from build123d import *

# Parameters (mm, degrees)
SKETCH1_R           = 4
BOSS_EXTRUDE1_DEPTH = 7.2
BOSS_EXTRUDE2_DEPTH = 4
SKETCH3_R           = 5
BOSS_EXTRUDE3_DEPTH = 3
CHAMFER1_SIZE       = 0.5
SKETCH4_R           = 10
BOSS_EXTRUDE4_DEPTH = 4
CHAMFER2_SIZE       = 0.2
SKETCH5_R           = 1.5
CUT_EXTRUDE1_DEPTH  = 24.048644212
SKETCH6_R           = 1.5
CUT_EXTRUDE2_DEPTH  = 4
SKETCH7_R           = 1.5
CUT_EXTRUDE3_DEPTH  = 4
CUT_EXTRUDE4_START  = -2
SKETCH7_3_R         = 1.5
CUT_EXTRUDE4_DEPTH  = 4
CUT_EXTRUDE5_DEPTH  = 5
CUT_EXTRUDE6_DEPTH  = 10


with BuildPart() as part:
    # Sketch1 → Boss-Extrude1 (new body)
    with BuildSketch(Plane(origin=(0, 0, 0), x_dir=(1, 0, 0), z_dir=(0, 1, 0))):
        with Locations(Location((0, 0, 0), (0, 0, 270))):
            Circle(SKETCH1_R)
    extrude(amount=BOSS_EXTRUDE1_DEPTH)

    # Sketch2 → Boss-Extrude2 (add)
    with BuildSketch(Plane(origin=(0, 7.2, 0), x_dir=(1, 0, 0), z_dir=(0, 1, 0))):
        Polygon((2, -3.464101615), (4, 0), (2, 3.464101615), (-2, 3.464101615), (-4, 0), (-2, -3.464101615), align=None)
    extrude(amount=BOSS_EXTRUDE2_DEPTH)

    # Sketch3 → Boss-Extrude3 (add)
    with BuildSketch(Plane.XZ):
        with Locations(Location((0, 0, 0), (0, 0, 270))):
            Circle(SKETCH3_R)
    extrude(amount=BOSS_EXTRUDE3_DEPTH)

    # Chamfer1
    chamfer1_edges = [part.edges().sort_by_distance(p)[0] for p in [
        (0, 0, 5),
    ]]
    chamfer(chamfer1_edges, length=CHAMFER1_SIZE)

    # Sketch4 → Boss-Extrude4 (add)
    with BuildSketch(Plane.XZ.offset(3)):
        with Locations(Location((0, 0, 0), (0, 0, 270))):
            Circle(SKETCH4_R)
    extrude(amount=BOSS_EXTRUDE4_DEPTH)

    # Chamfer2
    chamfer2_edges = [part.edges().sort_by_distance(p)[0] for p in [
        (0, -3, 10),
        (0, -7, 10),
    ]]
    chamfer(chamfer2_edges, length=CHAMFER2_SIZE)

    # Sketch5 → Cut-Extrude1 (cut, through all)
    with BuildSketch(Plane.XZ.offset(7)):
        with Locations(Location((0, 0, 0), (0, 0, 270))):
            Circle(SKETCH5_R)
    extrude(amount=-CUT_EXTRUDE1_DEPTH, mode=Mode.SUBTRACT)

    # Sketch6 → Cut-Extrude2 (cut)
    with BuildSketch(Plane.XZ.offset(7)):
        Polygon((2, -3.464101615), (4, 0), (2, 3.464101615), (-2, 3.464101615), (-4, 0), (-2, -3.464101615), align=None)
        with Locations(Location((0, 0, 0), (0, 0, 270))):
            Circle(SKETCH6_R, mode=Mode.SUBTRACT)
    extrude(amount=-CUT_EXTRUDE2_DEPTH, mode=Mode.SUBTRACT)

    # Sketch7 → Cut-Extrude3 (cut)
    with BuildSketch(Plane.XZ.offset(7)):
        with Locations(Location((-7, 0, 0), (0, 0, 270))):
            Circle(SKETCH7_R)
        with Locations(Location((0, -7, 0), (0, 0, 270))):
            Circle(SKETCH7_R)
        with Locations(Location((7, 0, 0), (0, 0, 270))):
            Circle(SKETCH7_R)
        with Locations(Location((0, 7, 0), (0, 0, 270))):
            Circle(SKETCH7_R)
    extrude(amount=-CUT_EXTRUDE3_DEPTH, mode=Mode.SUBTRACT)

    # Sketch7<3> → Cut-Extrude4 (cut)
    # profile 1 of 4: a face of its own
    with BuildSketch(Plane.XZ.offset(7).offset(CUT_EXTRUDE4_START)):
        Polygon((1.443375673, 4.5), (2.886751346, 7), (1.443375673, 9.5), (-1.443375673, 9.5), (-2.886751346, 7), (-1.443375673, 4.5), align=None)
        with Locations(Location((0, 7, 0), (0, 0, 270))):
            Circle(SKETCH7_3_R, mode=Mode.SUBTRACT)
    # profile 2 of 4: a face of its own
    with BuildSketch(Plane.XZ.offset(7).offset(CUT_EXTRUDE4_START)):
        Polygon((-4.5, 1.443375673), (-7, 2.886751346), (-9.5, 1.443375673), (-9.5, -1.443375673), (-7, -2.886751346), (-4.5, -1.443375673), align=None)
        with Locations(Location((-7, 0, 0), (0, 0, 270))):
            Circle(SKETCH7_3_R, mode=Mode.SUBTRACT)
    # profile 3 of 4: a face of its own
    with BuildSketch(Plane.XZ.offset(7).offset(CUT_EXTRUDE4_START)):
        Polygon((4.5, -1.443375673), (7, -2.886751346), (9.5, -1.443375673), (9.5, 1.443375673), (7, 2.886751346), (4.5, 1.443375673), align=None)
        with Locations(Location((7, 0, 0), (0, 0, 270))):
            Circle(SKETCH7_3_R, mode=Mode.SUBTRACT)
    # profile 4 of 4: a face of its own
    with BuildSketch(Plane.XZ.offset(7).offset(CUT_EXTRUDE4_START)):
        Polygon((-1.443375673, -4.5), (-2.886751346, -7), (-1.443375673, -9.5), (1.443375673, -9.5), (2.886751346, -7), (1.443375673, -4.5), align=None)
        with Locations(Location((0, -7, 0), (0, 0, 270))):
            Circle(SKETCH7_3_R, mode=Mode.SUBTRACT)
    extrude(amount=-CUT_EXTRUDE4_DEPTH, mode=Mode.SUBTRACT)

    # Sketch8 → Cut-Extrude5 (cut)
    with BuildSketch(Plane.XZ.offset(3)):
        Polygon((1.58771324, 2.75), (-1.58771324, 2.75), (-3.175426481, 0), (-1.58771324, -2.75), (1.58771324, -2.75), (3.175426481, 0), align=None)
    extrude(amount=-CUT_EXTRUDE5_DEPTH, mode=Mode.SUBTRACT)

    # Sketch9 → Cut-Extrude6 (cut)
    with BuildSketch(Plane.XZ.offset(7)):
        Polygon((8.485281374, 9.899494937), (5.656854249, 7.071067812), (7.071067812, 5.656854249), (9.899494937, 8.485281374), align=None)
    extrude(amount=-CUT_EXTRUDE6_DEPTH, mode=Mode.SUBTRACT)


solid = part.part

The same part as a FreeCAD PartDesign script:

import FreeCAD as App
import Part
import Sketcher
from FreeCAD import Vector
Q = App.Units.Quantity


def edges_at(feature, points):
    """Names of the edges that pass closest to the given points."""
    edges = feature.Shape.Edges
    near = lambda p: min(range(len(edges)), key=lambda i: edges[i].distToShape(Part.Vertex(*p))[0])
    return sorted({f"Edge{near(p) + 1}" for p in points})

doc = App.newDocument("Part")
body = doc.addObject("PartDesign::Body", "Body")

# Sketch on XZ plane
sketch1 = doc.addObject("Sketcher::SketchObject", "Sketch")
body.addObject(sketch1)
sketch1.AttachmentSupport = (doc.XZ_Plane, [""])
sketch1.MapMode = "FlatFace"
sketch1.addGeometry(Part.Circle(Vector(0, 0, 0), Vector(0, 0, 1), 4), False)
sketch1.addConstraint(Sketcher.Constraint("Coincident", 0, 3, -1, 1))
sketch1.addConstraint(Sketcher.Constraint("Diameter", 0, Q("8 mm")))
pad1 = doc.addObject("PartDesign::Pad", "Pad")
body.addObject(pad1)
pad1.Profile = sketch1
pad1.Length = 7.2
pad1.Reversed = True

# Sketch on XZ plane
sketch2 = doc.addObject("Sketcher::SketchObject", "Sketch001")
body.addObject(sketch2)
sketch2.AttachmentSupport = (doc.XZ_Plane, [""])
sketch2.MapMode = "FlatFace"
sketch2.AttachmentOffset = App.Placement(Vector(0, 0, -7.2), App.Rotation())
sketch2.addGeometry(Part.LineSegment(Vector(2, 3.5, 0), Vector(4, 0, 0)), False)
sketch2.addGeometry(Part.LineSegment(Vector(4, 0, 0), Vector(2, -3.5, 0)), False)
sketch2.addGeometry(Part.LineSegment(Vector(2, -3.5, 0), Vector(-2, -3.5, 0)), False)
sketch2.addGeometry(Part.LineSegment(Vector(-2, -3.5, 0), Vector(-4, 0, 0)), False)
sketch2.addGeometry(Part.LineSegment(Vector(-4, 0, 0), Vector(-2, 3.5, 0)), False)
sketch2.addGeometry(Part.LineSegment(Vector(-2, 3.5, 0), Vector(2, 3.5, 0)), False)
sketch2.addConstraint(Sketcher.Constraint("Coincident", 0, 2, 1, 1))
sketch2.addConstraint(Sketcher.Constraint("Coincident", 1, 2, 2, 1))
sketch2.addConstraint(Sketcher.Constraint("Coincident", 2, 2, 3, 1))
sketch2.addConstraint(Sketcher.Constraint("Coincident", 3, 2, 4, 1))
sketch2.addConstraint(Sketcher.Constraint("Coincident", 4, 2, 5, 1))
sketch2.addConstraint(Sketcher.Constraint("Coincident", 5, 2, 0, 1))
sketch2.addConstraint(Sketcher.Constraint("Horizontal", 2))
sketch2.addConstraint(Sketcher.Constraint("Horizontal", 5))
sketch2.addConstraint(Sketcher.Constraint("Symmetric", 0, 2, 3, 2, -1, 1))
sketch2.addConstraint(Sketcher.Constraint("Symmetric", 1, 2, 4, 2, -1, 1))
sketch2.addConstraint(Sketcher.Constraint("PointOnObject", 0, 2, -1))
sketch2.addConstraint(Sketcher.Constraint("Parallel", 0, 3))
sketch2.addConstraint(Sketcher.Constraint("Vertical", 2, 2, 4, 2))
sketch2.addConstraint(Sketcher.Constraint("DistanceX", 2, 2, 2, 1, Q("4 mm")))
sketch2.addConstraint(Sketcher.Constraint("Angle", 0, Q("-60 deg")))
sketch2.addConstraint(Sketcher.Constraint("Distance", 0, Q("4 mm")))
pad2 = doc.addObject("PartDesign::Pad", "Pad001")
body.addObject(pad2)
pad2.Profile = sketch2
pad2.Length = 4
pad2.Reversed = True

# Sketch on XZ plane
sketch3 = doc.addObject("Sketcher::SketchObject", "Sketch002")
body.addObject(sketch3)
sketch3.AttachmentSupport = (doc.XZ_Plane, [""])
sketch3.MapMode = "FlatFace"
sketch3.addGeometry(Part.Circle(Vector(0, 0, 0), Vector(0, 0, 1), 5), False)
sketch3.addConstraint(Sketcher.Constraint("Coincident", 0, 3, -1, 1))
sketch3.addConstraint(Sketcher.Constraint("Diameter", 0, Q("10 mm")))
pad3 = doc.addObject("PartDesign::Pad", "Pad002")
body.addObject(pad3)
pad3.Profile = sketch3
pad3.Length = 3
doc.recompute()

chamfer = doc.addObject("PartDesign::Chamfer", "Chamfer")
body.addObject(chamfer)
chamfer.Base = (pad3, edges_at(pad3, [(0, 0, 5)]))
chamfer.Size = 0.5

# Sketch on XZ plane
sketch4 = doc.addObject("Sketcher::SketchObject", "Sketch003")
body.addObject(sketch4)
sketch4.AttachmentSupport = (doc.XZ_Plane, [""])
sketch4.MapMode = "FlatFace"
sketch4.AttachmentOffset = App.Placement(Vector(0, 0, 3), App.Rotation())
sketch4.addGeometry(Part.Circle(Vector(0, 0, 0), Vector(0, 0, 1), 10), False)
sketch4.addConstraint(Sketcher.Constraint("Coincident", 0, 3, -1, 1))
sketch4.addConstraint(Sketcher.Constraint("Diameter", 0, Q("20 mm")))
pad4 = doc.addObject("PartDesign::Pad", "Pad003")
body.addObject(pad4)
pad4.Profile = sketch4
pad4.Length = 4
doc.recompute()

chamfer2 = doc.addObject("PartDesign::Chamfer", "Chamfer001")
body.addObject(chamfer2)
chamfer2.Base = (pad4, edges_at(pad4, [(0, -3, 10), (0, -7, 10)]))
chamfer2.Size = 0.2

# Sketch on XZ plane
sketch5 = doc.addObject("Sketcher::SketchObject", "Sketch004")
body.addObject(sketch5)
sketch5.AttachmentSupport = (doc.XZ_Plane, [""])
sketch5.MapMode = "FlatFace"
sketch5.AttachmentOffset = App.Placement(Vector(0, 0, 7), App.Rotation())
sketch5.addGeometry(Part.Circle(Vector(0, 0, 0), Vector(0, 0, 1), 1.5), False)
sketch5.addConstraint(Sketcher.Constraint("Coincident", 0, 3, -1, 1))
sketch5.addConstraint(Sketcher.Constraint("Diameter", 0, Q("3 mm")))
pocket1 = doc.addObject("PartDesign::Pocket", "Pocket")
body.addObject(pocket1)
pocket1.Profile = sketch5
pocket1.Type = "ThroughAll"

# Sketch on XZ plane
sketch6 = doc.addObject("Sketcher::SketchObject", "Sketch005")
body.addObject(sketch6)
sketch6.AttachmentSupport = (doc.XZ_Plane, [""])
sketch6.MapMode = "FlatFace"
sketch6.AttachmentOffset = App.Placement(Vector(0, 0, 7), App.Rotation())
sketch6.addGeometry(Part.LineSegment(Vector(2, -3.5, 0), Vector(4, 0, 0)), False)
sketch6.addGeometry(Part.LineSegment(Vector(4, 0, 0), Vector(2, 3.5, 0)), False)
sketch6.addGeometry(Part.LineSegment(Vector(2, 3.5, 0), Vector(-2, 3.5, 0)), False)
sketch6.addGeometry(Part.LineSegment(Vector(-2, 3.5, 0), Vector(-4, 0, 0)), False)
sketch6.addGeometry(Part.LineSegment(Vector(-4, 0, 0), Vector(-2, -3.5, 0)), False)
sketch6.addGeometry(Part.LineSegment(Vector(-2, -3.5, 0), Vector(2, -3.5, 0)), False)
sketch6.addGeometry(Part.Circle(Vector(0, 0, 0), Vector(0, 0, 1), 1.5), False)
sketch6.addConstraint(Sketcher.Constraint("Coincident", 0, 2, 1, 1))
sketch6.addConstraint(Sketcher.Constraint("Coincident", 1, 2, 2, 1))
sketch6.addConstraint(Sketcher.Constraint("Coincident", 2, 2, 3, 1))
sketch6.addConstraint(Sketcher.Constraint("Coincident", 3, 2, 4, 1))
sketch6.addConstraint(Sketcher.Constraint("Coincident", 4, 2, 5, 1))
sketch6.addConstraint(Sketcher.Constraint("Coincident", 5, 2, 0, 1))
sketch6.addConstraint(Sketcher.Constraint("Horizontal", 2))
sketch6.addConstraint(Sketcher.Constraint("Horizontal", 5))
sketch6.addConstraint(Sketcher.Constraint("Coincident", 6, 3, -1, 1))
sketch6.addConstraint(Sketcher.Constraint("Symmetric", 0, 2, 3, 2, -1, 1))
sketch6.addConstraint(Sketcher.Constraint("Symmetric", 1, 2, 4, 2, -1, 1))
sketch6.addConstraint(Sketcher.Constraint("PointOnObject", 0, 2, -1))
sketch6.addConstraint(Sketcher.Constraint("Parallel", 0, 3))
sketch6.addConstraint(Sketcher.Constraint("Vertical", 2, 2, 4, 2))
sketch6.addConstraint(Sketcher.Constraint("Diameter", 6, Q("3 mm")))
sketch6.addConstraint(Sketcher.Constraint("DistanceX", 2, 2, 2, 1, Q("4 mm")))
sketch6.addConstraint(Sketcher.Constraint("Angle", 0, Q("60 deg")))
sketch6.addConstraint(Sketcher.Constraint("Distance", 0, Q("4 mm")))
pocket2 = doc.addObject("PartDesign::Pocket", "Pocket001")
body.addObject(pocket2)
pocket2.Profile = sketch6
pocket2.Length = 4

# Sketch on XZ plane
sketch7 = doc.addObject("Sketcher::SketchObject", "Sketch006")
body.addObject(sketch7)
sketch7.AttachmentSupport = (doc.XZ_Plane, [""])
sketch7.MapMode = "FlatFace"
sketch7.AttachmentOffset = App.Placement(Vector(0, 0, 7), App.Rotation())
sketch7.addGeometry(Part.Circle(Vector(-7, 0, 0), Vector(0, 0, 1), 1.5), False)
sketch7.addGeometry(Part.Circle(Vector(0, -7, 0), Vector(0, 0, 1), 1.5), False)
sketch7.addGeometry(Part.Circle(Vector(7, 0, 0), Vector(0, 0, 1), 1.5), False)
sketch7.addGeometry(Part.Circle(Vector(0, 7, 0), Vector(0, 0, 1), 1.5), False)
sketch7.addConstraint(Sketcher.Constraint("Equal", 0, 1))
sketch7.addConstraint(Sketcher.Constraint("Equal", 1, 2))
sketch7.addConstraint(Sketcher.Constraint("Equal", 2, 3))
sketch7.addConstraint(Sketcher.Constraint("Symmetric", 0, 3, 2, 3, -1, 1))
sketch7.addConstraint(Sketcher.Constraint("Symmetric", 1, 3, 3, 3, -1, 1))
sketch7.addConstraint(Sketcher.Constraint("PointOnObject", 0, 3, -1))
sketch7.addConstraint(Sketcher.Constraint("PointOnObject", 1, 3, -2))
sketch7.addConstraint(Sketcher.Constraint("Diameter", 0, Q("3 mm")))
sketch7.addConstraint(Sketcher.Constraint("DistanceX", 0, 3, -1, 1, Q("7 mm")))
sketch7.addConstraint(Sketcher.Constraint("DistanceY", 1, 3, -1, 1, Q("7 mm")))
pocket3 = doc.addObject("PartDesign::Pocket", "Pocket002")
body.addObject(pocket3)
pocket3.Profile = sketch7
pocket3.Length = 4

# Sketch on XZ plane
sketch8 = doc.addObject("Sketcher::SketchObject", "Sketch007")
body.addObject(sketch8)
sketch8.AttachmentSupport = (doc.XZ_Plane, [""])
sketch8.MapMode = "FlatFace"
sketch8.AttachmentOffset = App.Placement(Vector(0, 0, 5), App.Rotation())
sketch8.addGeometry(Part.LineSegment(Vector(1.4, 4.5, 0), Vector(2.9, 7, 0)), False)
sketch8.addGeometry(Part.LineSegment(Vector(2.9, 7, 0), Vector(1.4, 9.5, 0)), False)
sketch8.addGeometry(Part.LineSegment(Vector(1.4, 9.5, 0), Vector(-1.4, 9.5, 0)), False)
sketch8.addGeometry(Part.LineSegment(Vector(-1.4, 9.5, 0), Vector(-2.9, 7, 0)), False)
sketch8.addGeometry(Part.LineSegment(Vector(-2.9, 7, 0), Vector(-1.4, 4.5, 0)), False)
sketch8.addGeometry(Part.LineSegment(Vector(-1.4, 4.5, 0), Vector(1.4, 4.5, 0)), False)
sketch8.addGeometry(Part.Circle(Vector(0, 7, 0), Vector(0, 0, 1), 1.5), False)
sketch8.addGeometry(Part.LineSegment(Vector(-4.5, 1.4, 0), Vector(-7, 2.9, 0)), False)
sketch8.addGeometry(Part.LineSegment(Vector(-7, 2.9, 0), Vector(-9.5, 1.4, 0)), False)
sketch8.addGeometry(Part.LineSegment(Vector(-9.5, 1.4, 0), Vector(-9.5, -1.4, 0)), False)
sketch8.addGeometry(Part.LineSegment(Vector(-9.5, -1.4, 0), Vector(-7, -2.9, 0)), False)
sketch8.addGeometry(Part.LineSegment(Vector(-7, -2.9, 0), Vector(-4.5, -1.4, 0)), False)
sketch8.addGeometry(Part.LineSegment(Vector(-4.5, -1.4, 0), Vector(-4.5, 1.4, 0)), False)
sketch8.addGeometry(Part.Circle(Vector(-7, 0, 0), Vector(0, 0, 1), 1.5), False)
sketch8.addGeometry(Part.LineSegment(Vector(4.5, -1.4, 0), Vector(7, -2.9, 0)), False)
sketch8.addGeometry(Part.LineSegment(Vector(7, -2.9, 0), Vector(9.5, -1.4, 0)), False)
sketch8.addGeometry(Part.LineSegment(Vector(9.5, -1.4, 0), Vector(9.5, 1.4, 0)), False)
sketch8.addGeometry(Part.LineSegment(Vector(9.5, 1.4, 0), Vector(7, 2.9, 0)), False)
sketch8.addGeometry(Part.LineSegment(Vector(7, 2.9, 0), Vector(4.5, 1.4, 0)), False)
sketch8.addGeometry(Part.LineSegment(Vector(4.5, 1.4, 0), Vector(4.5, -1.4, 0)), False)
sketch8.addGeometry(Part.Circle(Vector(7, 0, 0), Vector(0, 0, 1), 1.5), False)
sketch8.addGeometry(Part.LineSegment(Vector(-1.4, -4.5, 0), Vector(-2.9, -7, 0)), False)
sketch8.addGeometry(Part.LineSegment(Vector(-2.9, -7, 0), Vector(-1.4, -9.5, 0)), False)
sketch8.addGeometry(Part.LineSegment(Vector(-1.4, -9.5, 0), Vector(1.4, -9.5, 0)), False)
sketch8.addGeometry(Part.LineSegment(Vector(1.4, -9.5, 0), Vector(2.9, -7, 0)), False)
sketch8.addGeometry(Part.LineSegment(Vector(2.9, -7, 0), Vector(1.4, -4.5, 0)), False)
sketch8.addGeometry(Part.LineSegment(Vector(1.4, -4.5, 0), Vector(-1.4, -4.5, 0)), False)
sketch8.addGeometry(Part.Circle(Vector(0, -7, 0), Vector(0, 0, 1), 1.5), False)
sketch8.addConstraint(Sketcher.Constraint("Coincident", 0, 2, 1, 1))
sketch8.addConstraint(Sketcher.Constraint("Coincident", 1, 2, 2, 1))
sketch8.addConstraint(Sketcher.Constraint("Coincident", 2, 2, 3, 1))
sketch8.addConstraint(Sketcher.Constraint("Coincident", 3, 2, 4, 1))
sketch8.addConstraint(Sketcher.Constraint("Coincident", 4, 2, 5, 1))
sketch8.addConstraint(Sketcher.Constraint("Coincident", 5, 2, 0, 1))
sketch8.addConstraint(Sketcher.Constraint("Coincident", 7, 2, 8, 1))
sketch8.addConstraint(Sketcher.Constraint("Coincident", 8, 2, 9, 1))
sketch8.addConstraint(Sketcher.Constraint("Coincident", 9, 2, 10, 1))
sketch8.addConstraint(Sketcher.Constraint("Coincident", 10, 2, 11, 1))
sketch8.addConstraint(Sketcher.Constraint("Coincident", 11, 2, 12, 1))
sketch8.addConstraint(Sketcher.Constraint("Coincident", 12, 2, 7, 1))
sketch8.addConstraint(Sketcher.Constraint("Coincident", 14, 2, 15, 1))
sketch8.addConstraint(Sketcher.Constraint("Coincident", 15, 2, 16, 1))
sketch8.addConstraint(Sketcher.Constraint("Coincident", 16, 2, 17, 1))
sketch8.addConstraint(Sketcher.Constraint("Coincident", 17, 2, 18, 1))
sketch8.addConstraint(Sketcher.Constraint("Coincident", 18, 2, 19, 1))
sketch8.addConstraint(Sketcher.Constraint("Coincident", 19, 2, 14, 1))
sketch8.addConstraint(Sketcher.Constraint("Coincident", 21, 2, 22, 1))
sketch8.addConstraint(Sketcher.Constraint("Coincident", 22, 2, 23, 1))
sketch8.addConstraint(Sketcher.Constraint("Coincident", 23, 2, 24, 1))
sketch8.addConstraint(Sketcher.Constraint("Coincident", 24, 2, 25, 1))
sketch8.addConstraint(Sketcher.Constraint("Coincident", 25, 2, 26, 1))
sketch8.addConstraint(Sketcher.Constraint("Coincident", 26, 2, 21, 1))
sketch8.addConstraint(Sketcher.Constraint("Horizontal", 2))
sketch8.addConstraint(Sketcher.Constraint("Horizontal", 5))
sketch8.addConstraint(Sketcher.Constraint("Vertical", 9))
sketch8.addConstraint(Sketcher.Constraint("Vertical", 12))
sketch8.addConstraint(Sketcher.Constraint("Vertical", 16))
sketch8.addConstraint(Sketcher.Constraint("Vertical", 19))
sketch8.addConstraint(Sketcher.Constraint("Horizontal", 23))
sketch8.addConstraint(Sketcher.Constraint("Horizontal", 26))
sketch8.addConstraint(Sketcher.Constraint("Equal", 6, 13))
sketch8.addConstraint(Sketcher.Constraint("Equal", 13, 20))
sketch8.addConstraint(Sketcher.Constraint("Equal", 20, 27))
sketch8.addConstraint(Sketcher.Constraint("Symmetric", 13, 3, 20, 3, -1, 1))
sketch8.addConstraint(Sketcher.Constraint("Symmetric", 6, 3, 27, 3, -1, 1))
sketch8.addConstraint(Sketcher.Constraint("Symmetric", 7, 2, 14, 2, -1, 1))
sketch8.addConstraint(Sketcher.Constraint("Symmetric", 8, 2, 15, 2, -1, 1))
sketch8.addConstraint(Sketcher.Constraint("Symmetric", 10, 2, 17, 2, -1, 1))
sketch8.addConstraint(Sketcher.Constraint("Symmetric", 11, 2, 18, 2, -1, 1))
sketch8.addConstraint(Sketcher.Constraint("Symmetric", 0, 2, 21, 2, -1, 1))
sketch8.addConstraint(Sketcher.Constraint("Symmetric", 1, 2, 22, 2, -1, 1))
sketch8.addConstraint(Sketcher.Constraint("Symmetric", 3, 2, 24, 2, -1, 1))
sketch8.addConstraint(Sketcher.Constraint("Symmetric", 4, 2, 25, 2, -1, 1))
sketch8.addConstraint(Sketcher.Constraint("Symmetric", 0, 2, 3, 2, -2))
sketch8.addConstraint(Sketcher.Constraint("Symmetric", 10, 2, 14, 2, -2))
sketch8.addConstraint(Sketcher.Constraint("PointOnObject", 6, 3, -2))
sketch8.addConstraint(Sketcher.Constraint("PointOnObject", 13, 3, -1))
sketch8.addConstraint(Sketcher.Constraint("Parallel", 0, 3))
sketch8.addConstraint(Sketcher.Constraint("Parallel", 1, 4))
sketch8.addConstraint(Sketcher.Constraint("Perpendicular", 3, 7))
sketch8.addConstraint(Sketcher.Constraint("Perpendicular", 4, 8))
sketch8.addConstraint(Sketcher.Constraint("Parallel", 7, 10))
sketch8.addConstraint(Sketcher.Constraint("Parallel", 8, 11))
sketch8.addConstraint(Sketcher.Constraint("Parallel", 10, 14))
sketch8.addConstraint(Sketcher.Constraint("Parallel", 14, 17))
sketch8.addConstraint(Sketcher.Constraint("Perpendicular", 17, 21))
sketch8.addConstraint(Sketcher.Constraint("Parallel", 21, 24))
sketch8.addConstraint(Sketcher.Constraint("Horizontal", 6, 3, 0, 2))
sketch8.addConstraint(Sketcher.Constraint("Horizontal", 9, 2, 11, 2))
sketch8.addConstraint(Sketcher.Constraint("Horizontal", 8, 2, 12, 2))
sketch8.addConstraint(Sketcher.Constraint("Vertical", 2, 2, 4, 2))
sketch8.addConstraint(Sketcher.Constraint("Vertical", 13, 3, 7, 2))
sketch8.addConstraint(Sketcher.Constraint("Equal", 26, 9))
sketch8.addConstraint(Sketcher.Constraint("Equal", 4, 7))
sketch8.addConstraint(Sketcher.Constraint("Diameter", 6, Q("3 mm")))
sketch8.addConstraint(Sketcher.Constraint("Angle", 0, Q("60 deg")))
sketch8.addConstraint(Sketcher.Constraint("DistanceY", -1, 1, 6, 3, Q("7 mm")))
sketch8.addConstraint(Sketcher.Constraint("DistanceX", 13, 3, -1, 1, Q("7 mm")))
sketch8.addConstraint(Sketcher.Constraint("DistanceY", 4, 2, 2, 2, Q("5 mm")))
sketch8.addConstraint(Sketcher.Constraint("DistanceX", 2, 2, 2, 1, Q("2.886751 mm")))
pocket4 = doc.addObject("PartDesign::Pocket", "Pocket003")
body.addObject(pocket4)
pocket4.Profile = sketch8
pocket4.Length = 4

# Sketch on XZ plane
sketch9 = doc.addObject("Sketcher::SketchObject", "Sketch008")
body.addObject(sketch9)
sketch9.AttachmentSupport = (doc.XZ_Plane, [""])
sketch9.MapMode = "FlatFace"
sketch9.AttachmentOffset = App.Placement(Vector(0, 0, 3), App.Rotation())
sketch9.addGeometry(Part.LineSegment(Vector(1.6, 2.8, 0), Vector(-1.6, 2.8, 0)), False)
sketch9.addGeometry(Part.LineSegment(Vector(-1.6, 2.8, 0), Vector(-3.2, 0, 0)), False)
sketch9.addGeometry(Part.LineSegment(Vector(-3.2, 0, 0), Vector(-1.6, -2.8, 0)), False)
sketch9.addGeometry(Part.LineSegment(Vector(-1.6, -2.8, 0), Vector(1.6, -2.8, 0)), False)
sketch9.addGeometry(Part.LineSegment(Vector(1.6, -2.8, 0), Vector(3.2, 0, 0)), False)
sketch9.addGeometry(Part.LineSegment(Vector(3.2, 0, 0), Vector(1.6, 2.8, 0)), False)
sketch9.addConstraint(Sketcher.Constraint("Coincident", 0, 2, 1, 1))
sketch9.addConstraint(Sketcher.Constraint("Coincident", 1, 2, 2, 1))
sketch9.addConstraint(Sketcher.Constraint("Coincident", 2, 2, 3, 1))
sketch9.addConstraint(Sketcher.Constraint("Coincident", 3, 2, 4, 1))
sketch9.addConstraint(Sketcher.Constraint("Coincident", 4, 2, 5, 1))
sketch9.addConstraint(Sketcher.Constraint("Coincident", 5, 2, 0, 1))
sketch9.addConstraint(Sketcher.Constraint("Horizontal", 0))
sketch9.addConstraint(Sketcher.Constraint("Horizontal", 3))
sketch9.addConstraint(Sketcher.Constraint("Symmetric", 0, 2, 3, 2, -1, 1))
sketch9.addConstraint(Sketcher.Constraint("Symmetric", 1, 2, 4, 2, -1, 1))
sketch9.addConstraint(Sketcher.Constraint("PointOnObject", 1, 2, -1))
sketch9.addConstraint(Sketcher.Constraint("Parallel", 2, 5))
sketch9.addConstraint(Sketcher.Constraint("Vertical", 0, 2, 2, 2))
sketch9.addConstraint(Sketcher.Constraint("Angle", 1, Q("-120 deg")))
sketch9.addConstraint(Sketcher.Constraint("DistanceY", 2, 2, 0, 2, Q("5.5 mm")))
sketch9.addConstraint(Sketcher.Constraint("DistanceX", 0, 2, 0, 1, Q("3.175426 mm")))
pocket5 = doc.addObject("PartDesign::Pocket", "Pocket004")
body.addObject(pocket5)
pocket5.Profile = sketch9
pocket5.Length = 5

# Sketch on XZ plane
sketch10 = doc.addObject("Sketcher::SketchObject", "Sketch009")
body.addObject(sketch10)
sketch10.AttachmentSupport = (doc.XZ_Plane, [""])
sketch10.MapMode = "FlatFace"
sketch10.AttachmentOffset = App.Placement(Vector(0, 0, 7), App.Rotation())
sketch10.addGeometry(Part.LineSegment(Vector(8.5, 9.9, 0), Vector(5.7, 7.1, 0)), False)
sketch10.addGeometry(Part.LineSegment(Vector(5.7, 7.1, 0), Vector(7.1, 5.7, 0)), False)
sketch10.addGeometry(Part.LineSegment(Vector(7.1, 5.7, 0), Vector(9.9, 8.5, 0)), False)
sketch10.addGeometry(Part.LineSegment(Vector(9.9, 8.5, 0), Vector(8.5, 9.9, 0)), False)
sketch10.addConstraint(Sketcher.Constraint("Coincident", 0, 2, 1, 1))
sketch10.addConstraint(Sketcher.Constraint("Coincident", 1, 2, 2, 1))
sketch10.addConstraint(Sketcher.Constraint("Coincident", 2, 2, 3, 1))
sketch10.addConstraint(Sketcher.Constraint("Coincident", 3, 2, 0, 1))
sketch10.addConstraint(Sketcher.Constraint("Perpendicular", 0, 1))
sketch10.addConstraint(Sketcher.Constraint("Perpendicular", 1, 2))
sketch10.addConstraint(Sketcher.Constraint("Perpendicular", 2, 3))
sketch10.addConstraint(Sketcher.Constraint("Angle", 0, Q("-135 deg")))
sketch10.addConstraint(Sketcher.Constraint("Distance", 0, Q("4 mm")))
sketch10.addConstraint(Sketcher.Constraint("Distance", 1, Q("2 mm")))
sketch10.addConstraint(Sketcher.Constraint("DistanceY", -1, 1, 2, 2, Q("8.485281 mm")))
sketch10.addConstraint(Sketcher.Constraint("DistanceX", -1, 1, 3, 2, Q("8.485281 mm")))
pocket6 = doc.addObject("PartDesign::Pocket", "Pocket005")
body.addObject(pocket6)
pocket6.Profile = sketch10
pocket6.Length = 10

doc.recompute()
